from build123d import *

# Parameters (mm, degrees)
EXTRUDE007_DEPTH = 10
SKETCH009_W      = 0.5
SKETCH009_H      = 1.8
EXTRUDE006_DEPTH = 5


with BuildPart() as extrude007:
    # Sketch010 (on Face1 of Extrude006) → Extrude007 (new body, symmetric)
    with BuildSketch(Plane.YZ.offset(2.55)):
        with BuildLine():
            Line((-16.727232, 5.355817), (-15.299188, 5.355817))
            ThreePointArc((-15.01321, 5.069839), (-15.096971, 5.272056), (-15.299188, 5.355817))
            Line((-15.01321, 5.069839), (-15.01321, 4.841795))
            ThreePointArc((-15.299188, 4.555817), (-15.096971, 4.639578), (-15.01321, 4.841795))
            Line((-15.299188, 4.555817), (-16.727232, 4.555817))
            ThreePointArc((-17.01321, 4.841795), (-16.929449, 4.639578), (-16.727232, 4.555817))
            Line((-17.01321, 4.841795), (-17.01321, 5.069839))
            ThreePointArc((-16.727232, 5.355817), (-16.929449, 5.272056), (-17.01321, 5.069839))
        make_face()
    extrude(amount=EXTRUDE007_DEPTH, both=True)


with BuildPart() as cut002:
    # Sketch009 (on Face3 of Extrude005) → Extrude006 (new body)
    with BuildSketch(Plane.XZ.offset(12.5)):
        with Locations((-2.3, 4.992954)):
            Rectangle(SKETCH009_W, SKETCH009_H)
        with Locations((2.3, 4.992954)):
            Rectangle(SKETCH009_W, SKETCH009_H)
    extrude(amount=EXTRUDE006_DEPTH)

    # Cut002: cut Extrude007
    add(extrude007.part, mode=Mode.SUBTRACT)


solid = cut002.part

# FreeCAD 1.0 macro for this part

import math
import FreeCAD as App
import Part
import Sketcher
from FreeCAD import Vector

doc = App.newDocument("Part")
body = doc.addObject("PartDesign::Body", "Body")

sketch1 = doc.addObject("Sketcher::SketchObject", "Sketch")
body.addObject(sketch1)
sketch1.AttachmentSupport = (doc.YZ_Plane, [""])
sketch1.MapMode = "FlatFace"
sketch1.AttachmentOffset = App.Placement(Vector(0, 0, 2.55), App.Rotation())
sketch1.addGeometry(Part.LineSegment(Vector(-15.299188, 5.355817, 0), Vector(-16.727232, 5.355817, 0)), False)
sketch1.addGeometry(Part.ArcOfCircle(Part.Circle(Vector(-16.727232, 5.069839, 0), Vector(0, 0, 1), 0.285978), math.radians(89.999988), math.radians(180.000012)), False)
sketch1.addGeometry(Part.LineSegment(Vector(-17.01321, 5.069839, 0), Vector(-17.01321, 4.841795, 0)), False)
sketch1.addGeometry(Part.ArcOfCircle(Part.Circle(Vector(-16.727232, 4.841795, 0), Vector(0, 0, 1), 0.285978), math.radians(179.999988), math.radians(270.000012)), False)
sketch1.addGeometry(Part.LineSegment(Vector(-16.727232, 4.555817, 0), Vector(-15.299188, 4.555817, 0)), False)
sketch1.addGeometry(Part.ArcOfCircle(Part.Circle(Vector(-15.299188, 4.841795, 0), Vector(0, 0, 1), 0.285978), math.radians(-90.000012), math.radians(0.000012)), False)
sketch1.addGeometry(Part.LineSegment(Vector(-15.01321, 4.841795, 0), Vector(-15.01321, 5.069839, 0)), False)
sketch1.addGeometry(Part.ArcOfCircle(Part.Circle(Vector(-15.299188, 5.069839, 0), Vector(0, 0, 1), 0.285978), math.radians(-0.000012), math.radians(90.000012)), False)
sketch1.addConstraint(Sketcher.Constraint("Tangent", 0, 2, 1, 1))
sketch1.addConstraint(Sketcher.Constraint("Tangent", 1, 2, 2, 1))
sketch1.addConstraint(Sketcher.Constraint("Tangent", 2, 2, 3, 1))
sketch1.addConstraint(Sketcher.Constraint("Tangent", 3, 2, 4, 1))
sketch1.addConstraint(Sketcher.Constraint("Tangent", 4, 2, 5, 1))
sketch1.addConstraint(Sketcher.Constraint("Tangent", 5, 2, 6, 1))
sketch1.addConstraint(Sketcher.Constraint("Tangent", 6, 2, 7, 1))
sketch1.addConstraint(Sketcher.Constraint("Tangent", 7, 2, 0, 1))
sketch1.addConstraint(Sketcher.Constraint("Horizontal", 0))
sketch1.addConstraint(Sketcher.Constraint("Vertical", 2))
sketch1.addConstraint(Sketcher.Constraint("Horizontal", 4))
sketch1.addConstraint(Sketcher.Constraint("Vertical", 6))
sketch1.addConstraint(Sketcher.Constraint("Equal", 1, 3))
sketch1.addConstraint(Sketcher.Constraint("Equal", 3, 5))
sketch1.addConstraint(Sketcher.Constraint("Equal", 5, 7))
sketch1.addConstraint(Sketcher.Constraint("DistanceY", 3, 2, 0, 2, 0.8))
sketch1.addConstraint(Sketcher.Constraint("Radius", 1, 0.285978))
sketch1.addConstraint(Sketcher.Constraint("DistanceX", 0, 2, 0, 1, 1.428044))
sketch1.addConstraint(Sketcher.Constraint("DistanceY", -1, 1, 1, 3, 5.069839))
sketch1.addConstraint(Sketcher.Constraint("DistanceX", 1, 2, -1, 1, 17.01321))
pad1 = doc.addObject("PartDesign::Pad", "Pad")
body.addObject(pad1)
pad1.Profile = sketch1
pad1.Length = 20
pad1.Midplane = True
body2 = doc.addObject("PartDesign::Body", "Body001")
body2.AllowCompound = True

sketch2 = doc.addObject("Sketcher::SketchObject", "Sketch001")
body2.addObject(sketch2)
sketch2.AttachmentSupport = (doc.getObject("XZ_Plane001"), [""])
sketch2.MapMode = "FlatFace"
sketch2.AttachmentOffset = App.Placement(Vector(0, 0, 12.5), App.Rotation())
sketch2.addGeometry(Part.LineSegment(Vector(-2.55, 5.892954, 0), Vector(-2.55, 4.092954, 0)), False)
sketch2.addGeometry(Part.LineSegment(Vector(-2.55, 4.092954, 0), Vector(-2.05, 4.092954, 0)), False)
sketch2.addGeometry(Part.LineSegment(Vector(-2.05, 4.092954, 0), Vector(-2.05, 5.892954, 0)), False)
sketch2.addGeometry(Part.LineSegment(Vector(-2.05, 5.892954, 0), Vector(-2.55, 5.892954, 0)), False)
sketch2.addGeometry(Part.LineSegment(Vector(2.05, 5.892954, 0), Vector(2.05, 4.092954, 0)), False)
sketch2.addGeometry(Part.LineSegment(Vector(2.05, 4.092954, 0), Vector(2.55, 4.092954, 0)), False)
sketch2.addGeometry(Part.LineSegment(Vector(2.55, 4.092954, 0), Vector(2.55, 5.892954, 0)), False)
sketch2.addGeometry(Part.LineSegment(Vector(2.55, 5.892954, 0), Vector(2.05, 5.892954, 0)), False)
sketch2.addConstraint(Sketcher.Constraint("Coincident", 0, 2, 1, 1))
sketch2.addConstraint(Sketcher.Constraint("Coincident", 1, 2, 2, 1))
sketch2.addConstraint(Sketcher.Constraint("Coincident", 2, 2, 3, 1))
sketch2.addConstraint(Sketcher.Constraint("Coincident", 3, 2, 0, 1))
sketch2.addConstraint(Sketcher.Constraint("Coincident", 4, 2, 5, 1))
sketch2.addConstraint(Sketcher.Constraint("Coincident", 5, 2, 6, 1))
sketch2.addConstraint(Sketcher.Constraint("Coincident", 6, 2, 7, 1))
sketch2.addConstraint(Sketcher.Constraint("Coincident", 7, 2, 4, 1))
sketch2.addConstraint(Sketcher.Constraint("Vertical", 0))
sketch2.addConstraint(Sketcher.Constraint("Horizontal", 1))
sketch2.addConstraint(Sketcher.Constraint("Vertical", 2))
sketch2.addConstraint(Sketcher.Constraint("Horizontal", 3))
sketch2.addConstraint(Sketcher.Constraint("Vertical", 4))
sketch2.addConstraint(Sketcher.Constraint("Horizontal", 5))
sketch2.addConstraint(Sketcher.Constraint("Vertical", 6))
sketch2.addConstraint(Sketcher.Constraint("Horizontal", 7))
sketch2.addConstraint(Sketcher.Constraint("Symmetric", 1, 2, 4, 2, -2))
sketch2.addConstraint(Sketcher.Constraint("Symmetric", 3, 2, 6, 2, -2))
sketch2.addConstraint(Sketcher.Constraint("DistanceX", 1, 1, 1, 2, 0.5))
sketch2.addConstraint(Sketcher.Constraint("DistanceY", 0, 2, 0, 1, 1.8))
sketch2.addConstraint(Sketcher.Constraint("DistanceX", 1, 2, 4, 2, 4.1))
sketch2.addConstraint(Sketcher.Constraint("DistanceY", -1, 1, 0, 2, 4.092954))
pad2 = doc.addObject("PartDesign::Pad", "Pad001")
body2.addObject(pad2)
pad2.Profile = sketch2
pad2.Length = 5
doc.recompute()

boolean = doc.addObject("PartDesign::Boolean", "Boolean")
body2.addObject(boolean)
boolean.Type = "Cut"
boolean.addObjects([body])

doc.recompute()
